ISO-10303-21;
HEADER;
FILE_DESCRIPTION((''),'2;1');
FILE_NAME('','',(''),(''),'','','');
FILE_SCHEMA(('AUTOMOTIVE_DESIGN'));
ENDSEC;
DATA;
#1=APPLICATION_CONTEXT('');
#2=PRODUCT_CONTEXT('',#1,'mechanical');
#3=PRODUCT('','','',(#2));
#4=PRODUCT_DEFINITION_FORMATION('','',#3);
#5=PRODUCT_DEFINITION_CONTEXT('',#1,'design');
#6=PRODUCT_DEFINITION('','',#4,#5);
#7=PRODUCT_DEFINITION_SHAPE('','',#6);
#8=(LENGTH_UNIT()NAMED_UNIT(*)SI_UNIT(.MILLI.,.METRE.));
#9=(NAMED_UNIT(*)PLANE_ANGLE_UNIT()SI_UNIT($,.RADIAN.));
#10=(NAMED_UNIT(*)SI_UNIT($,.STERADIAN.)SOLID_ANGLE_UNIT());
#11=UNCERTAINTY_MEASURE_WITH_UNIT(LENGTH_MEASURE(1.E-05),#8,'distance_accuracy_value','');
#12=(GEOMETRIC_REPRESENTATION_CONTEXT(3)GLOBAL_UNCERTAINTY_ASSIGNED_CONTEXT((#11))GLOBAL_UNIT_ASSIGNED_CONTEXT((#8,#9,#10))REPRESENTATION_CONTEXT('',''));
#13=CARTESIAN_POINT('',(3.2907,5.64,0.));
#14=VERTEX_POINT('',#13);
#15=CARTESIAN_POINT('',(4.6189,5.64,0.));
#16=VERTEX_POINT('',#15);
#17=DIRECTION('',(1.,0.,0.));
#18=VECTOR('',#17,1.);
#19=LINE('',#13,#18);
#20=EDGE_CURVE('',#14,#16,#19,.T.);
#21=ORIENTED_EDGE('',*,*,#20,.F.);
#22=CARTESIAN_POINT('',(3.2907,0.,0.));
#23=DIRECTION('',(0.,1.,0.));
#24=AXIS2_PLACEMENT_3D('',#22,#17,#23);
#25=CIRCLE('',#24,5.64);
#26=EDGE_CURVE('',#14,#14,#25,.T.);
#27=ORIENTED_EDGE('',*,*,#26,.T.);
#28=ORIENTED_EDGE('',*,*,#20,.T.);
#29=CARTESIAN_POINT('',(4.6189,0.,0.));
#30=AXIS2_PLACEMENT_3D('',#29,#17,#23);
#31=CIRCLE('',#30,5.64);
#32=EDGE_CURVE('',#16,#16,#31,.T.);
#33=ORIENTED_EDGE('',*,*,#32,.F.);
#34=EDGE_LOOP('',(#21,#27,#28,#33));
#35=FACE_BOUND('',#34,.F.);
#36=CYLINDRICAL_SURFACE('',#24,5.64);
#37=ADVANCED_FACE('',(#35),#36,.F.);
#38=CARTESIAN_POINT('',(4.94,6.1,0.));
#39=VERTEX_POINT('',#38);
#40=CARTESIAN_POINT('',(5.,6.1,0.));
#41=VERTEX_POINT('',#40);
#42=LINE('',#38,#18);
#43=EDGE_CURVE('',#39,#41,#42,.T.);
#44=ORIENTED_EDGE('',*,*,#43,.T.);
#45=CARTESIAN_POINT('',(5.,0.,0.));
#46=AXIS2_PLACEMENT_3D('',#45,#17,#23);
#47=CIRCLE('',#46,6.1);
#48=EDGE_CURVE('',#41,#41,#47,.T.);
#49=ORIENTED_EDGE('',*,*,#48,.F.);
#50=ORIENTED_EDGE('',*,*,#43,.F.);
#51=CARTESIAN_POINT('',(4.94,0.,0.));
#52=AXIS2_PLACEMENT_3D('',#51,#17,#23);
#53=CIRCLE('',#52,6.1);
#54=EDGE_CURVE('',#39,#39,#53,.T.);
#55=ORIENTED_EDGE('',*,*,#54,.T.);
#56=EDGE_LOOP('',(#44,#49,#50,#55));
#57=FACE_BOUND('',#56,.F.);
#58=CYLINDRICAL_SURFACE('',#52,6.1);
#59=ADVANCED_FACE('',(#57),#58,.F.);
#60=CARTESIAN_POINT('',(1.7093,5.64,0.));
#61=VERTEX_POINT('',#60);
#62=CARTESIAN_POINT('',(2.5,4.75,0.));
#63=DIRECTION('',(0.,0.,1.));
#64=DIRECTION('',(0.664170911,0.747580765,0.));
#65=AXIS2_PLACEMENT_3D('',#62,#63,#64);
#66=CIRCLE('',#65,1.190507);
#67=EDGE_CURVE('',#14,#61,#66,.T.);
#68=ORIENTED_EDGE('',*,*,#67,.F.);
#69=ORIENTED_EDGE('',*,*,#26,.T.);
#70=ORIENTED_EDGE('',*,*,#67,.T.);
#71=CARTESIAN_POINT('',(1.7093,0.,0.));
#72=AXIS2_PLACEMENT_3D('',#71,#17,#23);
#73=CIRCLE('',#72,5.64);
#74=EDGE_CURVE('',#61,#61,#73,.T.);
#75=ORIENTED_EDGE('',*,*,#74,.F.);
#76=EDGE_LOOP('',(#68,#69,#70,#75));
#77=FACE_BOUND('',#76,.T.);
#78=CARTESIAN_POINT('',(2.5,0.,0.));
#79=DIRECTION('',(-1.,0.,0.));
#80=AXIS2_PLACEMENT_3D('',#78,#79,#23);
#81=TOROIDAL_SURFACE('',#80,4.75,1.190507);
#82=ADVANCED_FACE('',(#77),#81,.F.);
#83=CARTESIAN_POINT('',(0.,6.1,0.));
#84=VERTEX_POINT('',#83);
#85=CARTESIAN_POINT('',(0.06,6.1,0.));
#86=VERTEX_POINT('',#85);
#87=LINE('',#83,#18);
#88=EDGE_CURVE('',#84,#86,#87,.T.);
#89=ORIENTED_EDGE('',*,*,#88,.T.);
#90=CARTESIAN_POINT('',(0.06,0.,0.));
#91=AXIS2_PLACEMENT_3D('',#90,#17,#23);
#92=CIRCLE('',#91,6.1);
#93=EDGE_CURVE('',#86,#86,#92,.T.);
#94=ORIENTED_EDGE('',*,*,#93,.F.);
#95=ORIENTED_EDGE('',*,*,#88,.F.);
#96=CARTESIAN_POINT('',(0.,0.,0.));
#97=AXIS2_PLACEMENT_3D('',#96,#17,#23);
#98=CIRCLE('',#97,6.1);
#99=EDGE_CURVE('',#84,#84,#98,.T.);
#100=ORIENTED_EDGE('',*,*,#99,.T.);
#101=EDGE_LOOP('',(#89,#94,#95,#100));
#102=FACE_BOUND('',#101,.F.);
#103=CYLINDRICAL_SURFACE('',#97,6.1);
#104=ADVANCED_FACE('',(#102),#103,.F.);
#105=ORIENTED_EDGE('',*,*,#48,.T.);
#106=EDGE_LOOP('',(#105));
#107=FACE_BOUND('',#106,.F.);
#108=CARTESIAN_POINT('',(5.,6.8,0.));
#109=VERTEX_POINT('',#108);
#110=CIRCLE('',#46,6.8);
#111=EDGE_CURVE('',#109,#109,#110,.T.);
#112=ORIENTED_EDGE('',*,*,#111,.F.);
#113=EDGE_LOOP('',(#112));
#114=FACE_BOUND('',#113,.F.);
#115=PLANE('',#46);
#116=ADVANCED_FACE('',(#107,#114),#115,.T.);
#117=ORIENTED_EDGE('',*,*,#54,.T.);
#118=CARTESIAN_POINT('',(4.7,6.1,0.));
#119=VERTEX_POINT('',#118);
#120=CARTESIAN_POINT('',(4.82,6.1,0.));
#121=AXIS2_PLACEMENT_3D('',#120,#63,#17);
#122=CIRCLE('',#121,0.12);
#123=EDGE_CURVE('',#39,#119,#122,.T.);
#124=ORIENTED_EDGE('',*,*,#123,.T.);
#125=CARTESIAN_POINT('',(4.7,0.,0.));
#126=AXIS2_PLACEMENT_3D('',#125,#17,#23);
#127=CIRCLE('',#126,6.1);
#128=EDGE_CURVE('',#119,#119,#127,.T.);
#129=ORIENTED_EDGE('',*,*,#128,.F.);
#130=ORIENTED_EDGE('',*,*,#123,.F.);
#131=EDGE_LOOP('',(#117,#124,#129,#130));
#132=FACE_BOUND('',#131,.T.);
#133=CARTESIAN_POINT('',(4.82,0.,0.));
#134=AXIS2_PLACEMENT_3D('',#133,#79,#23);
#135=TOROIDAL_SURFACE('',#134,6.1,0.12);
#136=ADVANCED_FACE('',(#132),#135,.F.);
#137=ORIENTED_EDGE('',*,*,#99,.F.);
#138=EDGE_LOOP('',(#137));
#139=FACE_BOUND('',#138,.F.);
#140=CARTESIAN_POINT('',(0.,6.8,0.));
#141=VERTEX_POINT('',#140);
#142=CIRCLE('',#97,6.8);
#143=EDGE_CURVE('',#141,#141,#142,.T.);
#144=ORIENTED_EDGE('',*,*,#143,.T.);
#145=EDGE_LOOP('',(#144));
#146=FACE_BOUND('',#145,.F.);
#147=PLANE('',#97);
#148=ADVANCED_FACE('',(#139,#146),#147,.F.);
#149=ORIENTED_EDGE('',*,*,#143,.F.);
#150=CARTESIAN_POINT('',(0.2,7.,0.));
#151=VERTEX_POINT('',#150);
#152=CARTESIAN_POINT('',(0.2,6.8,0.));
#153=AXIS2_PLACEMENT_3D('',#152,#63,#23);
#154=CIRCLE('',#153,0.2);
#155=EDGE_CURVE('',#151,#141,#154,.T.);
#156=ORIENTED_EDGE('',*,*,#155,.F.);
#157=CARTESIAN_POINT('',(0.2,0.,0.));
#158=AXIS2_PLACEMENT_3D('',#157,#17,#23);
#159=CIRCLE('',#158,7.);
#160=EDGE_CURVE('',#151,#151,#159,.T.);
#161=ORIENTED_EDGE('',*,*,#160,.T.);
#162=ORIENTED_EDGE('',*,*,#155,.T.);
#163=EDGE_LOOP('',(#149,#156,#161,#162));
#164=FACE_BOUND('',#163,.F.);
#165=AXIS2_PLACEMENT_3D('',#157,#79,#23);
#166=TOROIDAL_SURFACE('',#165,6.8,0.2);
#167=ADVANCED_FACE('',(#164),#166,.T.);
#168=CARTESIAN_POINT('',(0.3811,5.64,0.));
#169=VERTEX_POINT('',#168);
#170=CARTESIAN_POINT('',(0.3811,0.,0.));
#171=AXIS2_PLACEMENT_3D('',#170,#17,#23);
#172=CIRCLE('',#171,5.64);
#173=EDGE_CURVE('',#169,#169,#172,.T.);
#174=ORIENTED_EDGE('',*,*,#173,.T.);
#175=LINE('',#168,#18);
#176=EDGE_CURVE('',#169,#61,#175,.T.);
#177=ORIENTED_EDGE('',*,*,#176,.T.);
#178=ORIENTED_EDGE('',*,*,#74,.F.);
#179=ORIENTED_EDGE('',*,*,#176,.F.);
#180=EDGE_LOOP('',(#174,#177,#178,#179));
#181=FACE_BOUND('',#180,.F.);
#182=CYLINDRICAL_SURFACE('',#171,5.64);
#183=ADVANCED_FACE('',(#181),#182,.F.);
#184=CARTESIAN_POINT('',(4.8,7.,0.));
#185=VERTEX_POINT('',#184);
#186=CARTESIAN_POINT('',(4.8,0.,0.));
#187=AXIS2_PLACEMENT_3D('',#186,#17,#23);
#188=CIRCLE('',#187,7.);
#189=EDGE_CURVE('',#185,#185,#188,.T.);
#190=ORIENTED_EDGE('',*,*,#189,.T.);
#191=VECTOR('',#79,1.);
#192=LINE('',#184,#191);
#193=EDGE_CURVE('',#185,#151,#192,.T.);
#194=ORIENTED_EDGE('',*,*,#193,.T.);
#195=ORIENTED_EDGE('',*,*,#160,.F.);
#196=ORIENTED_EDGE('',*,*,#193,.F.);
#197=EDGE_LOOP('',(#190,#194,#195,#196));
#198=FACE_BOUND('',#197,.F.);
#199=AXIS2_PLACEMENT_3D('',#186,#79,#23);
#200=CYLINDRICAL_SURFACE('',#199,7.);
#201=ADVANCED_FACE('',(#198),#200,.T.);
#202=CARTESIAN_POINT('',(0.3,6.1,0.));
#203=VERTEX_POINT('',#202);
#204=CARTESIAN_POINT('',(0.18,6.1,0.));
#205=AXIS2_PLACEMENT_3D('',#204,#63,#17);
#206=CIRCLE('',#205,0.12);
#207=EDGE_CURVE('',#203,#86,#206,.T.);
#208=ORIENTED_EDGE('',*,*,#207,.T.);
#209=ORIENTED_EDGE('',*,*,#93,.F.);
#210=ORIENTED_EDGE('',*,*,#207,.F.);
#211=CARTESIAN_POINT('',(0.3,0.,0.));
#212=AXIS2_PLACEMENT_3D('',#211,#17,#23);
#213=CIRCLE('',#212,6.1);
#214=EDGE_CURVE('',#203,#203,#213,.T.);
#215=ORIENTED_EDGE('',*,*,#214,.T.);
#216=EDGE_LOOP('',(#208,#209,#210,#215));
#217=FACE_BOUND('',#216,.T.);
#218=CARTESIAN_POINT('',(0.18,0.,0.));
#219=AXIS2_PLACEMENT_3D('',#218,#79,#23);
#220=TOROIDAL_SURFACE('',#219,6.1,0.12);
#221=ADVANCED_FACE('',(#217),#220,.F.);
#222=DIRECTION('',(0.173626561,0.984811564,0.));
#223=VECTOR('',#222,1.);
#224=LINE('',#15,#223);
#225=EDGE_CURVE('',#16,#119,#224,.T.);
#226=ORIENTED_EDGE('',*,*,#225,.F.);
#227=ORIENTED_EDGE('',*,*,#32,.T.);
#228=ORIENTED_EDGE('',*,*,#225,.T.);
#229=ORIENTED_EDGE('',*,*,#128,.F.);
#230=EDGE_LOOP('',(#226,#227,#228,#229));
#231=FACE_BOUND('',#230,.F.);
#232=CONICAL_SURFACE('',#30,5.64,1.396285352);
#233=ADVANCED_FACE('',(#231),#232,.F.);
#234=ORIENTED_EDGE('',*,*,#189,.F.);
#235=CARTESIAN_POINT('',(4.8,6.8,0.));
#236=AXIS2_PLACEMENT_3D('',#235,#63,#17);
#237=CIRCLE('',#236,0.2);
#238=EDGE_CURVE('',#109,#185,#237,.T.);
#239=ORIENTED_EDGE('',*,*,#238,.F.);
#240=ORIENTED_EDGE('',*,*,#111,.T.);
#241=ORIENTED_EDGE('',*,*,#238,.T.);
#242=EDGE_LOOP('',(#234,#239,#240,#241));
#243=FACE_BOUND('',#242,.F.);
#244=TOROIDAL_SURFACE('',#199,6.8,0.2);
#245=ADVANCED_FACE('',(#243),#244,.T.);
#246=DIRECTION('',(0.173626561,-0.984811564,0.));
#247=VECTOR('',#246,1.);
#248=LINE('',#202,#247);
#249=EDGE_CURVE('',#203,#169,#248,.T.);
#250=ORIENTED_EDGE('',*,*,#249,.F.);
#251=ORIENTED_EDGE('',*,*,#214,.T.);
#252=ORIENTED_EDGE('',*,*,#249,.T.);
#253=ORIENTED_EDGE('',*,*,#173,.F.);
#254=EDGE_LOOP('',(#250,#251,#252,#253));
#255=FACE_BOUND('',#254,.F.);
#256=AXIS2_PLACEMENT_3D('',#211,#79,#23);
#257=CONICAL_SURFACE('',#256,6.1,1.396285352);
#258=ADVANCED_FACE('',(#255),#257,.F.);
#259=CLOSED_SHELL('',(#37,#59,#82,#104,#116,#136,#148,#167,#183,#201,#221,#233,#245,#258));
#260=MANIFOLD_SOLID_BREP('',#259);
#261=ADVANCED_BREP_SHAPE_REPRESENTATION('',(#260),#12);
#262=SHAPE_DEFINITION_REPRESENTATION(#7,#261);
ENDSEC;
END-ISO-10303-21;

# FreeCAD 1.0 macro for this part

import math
import FreeCAD as App
import Part
import Sketcher

doc = App.newDocument("Part")
body = doc.addObject("PartDesign::Body", "Body")

# Sketch on XY plane
sketch1 = doc.addObject("Sketcher::SketchObject", "Sketch")
body.addObject(sketch1)
sketch1.AttachmentSupport = (doc.XY_Plane, [""])
sketch1.MapMode = "FlatFace"
sketch1.addGeometry([
    Part.ArcOfCircle(Part.Circle(App.Vector(0.2, 6.8, 0), App.Vector(0, 0, 1), 0.2), math.radians(90), math.radians(180)),  # 0
    Part.LineSegment(App.Vector(0, 6.8, 0), App.Vector(0, 6.1, 0)),  # 1
    Part.LineSegment(App.Vector(0, 6.1, 0), App.Vector(0.06, 6.1, 0)),  # 2
    Part.ArcOfCircle(Part.Circle(App.Vector(0.18, 6.1, 0), App.Vector(0, 0, 1), 0.12), math.radians(0), math.radians(180)),  # 3
    Part.LineSegment(App.Vector(0.3, 6.1, 0), App.Vector(0.38, 5.64, 0)),  # 4
    Part.LineSegment(App.Vector(0.38, 5.64, 0), App.Vector(1.71, 5.64, 0)),  # 5
    Part.ArcOfCircle(Part.Circle(App.Vector(2.5, 4.75, 0), App.Vector(0, 0, 1), 1.19), math.radians(48), math.radians(132)),  # 6
    Part.LineSegment(App.Vector(3.29, 5.64, 0), App.Vector(4.62, 5.64, 0)),  # 7
    Part.LineSegment(App.Vector(4.62, 5.64, 0), App.Vector(4.7, 6.1, 0)),  # 8
    Part.ArcOfCircle(Part.Circle(App.Vector(4.82, 6.1, 0), App.Vector(0, 0, 1), 0.12), math.radians(0), math.radians(180)),  # 9
    Part.LineSegment(App.Vector(4.94, 6.1, 0), App.Vector(5, 6.1, 0)),  # 10
    Part.LineSegment(App.Vector(5, 6.1, 0), App.Vector(5, 6.8, 0)),  # 11
    Part.ArcOfCircle(Part.Circle(App.Vector(4.8, 6.8, 0), App.Vector(0, 0, 1), 0.2), math.radians(0), math.radians(90)),  # 12
    Part.LineSegment(App.Vector(4.8, 7, 0), App.Vector(0.2, 7, 0)),  # 13
], False)
sketch1.addConstraint([
    Sketcher.Constraint("Tangent", 0, 2, 1, 1),
    Sketcher.Constraint("Coincident", 1, 2, 2, 1),
    Sketcher.Constraint("Coincident", 2, 2, 3, 2),
    Sketcher.Constraint("Coincident", 3, 1, 4, 1),
    Sketcher.Constraint("Coincident", 4, 2, 5, 1),
    Sketcher.Constraint("Coincident", 5, 2, 6, 2),
    Sketcher.Constraint("Coincident", 6, 1, 7, 1),
    Sketcher.Constraint("Coincident", 7, 2, 8, 1),
    Sketcher.Constraint("Coincident", 8, 2, 9, 2),
    Sketcher.Constraint("Coincident", 9, 1, 10, 1),
    Sketcher.Constraint("Coincident", 10, 2, 11, 1),
    Sketcher.Constraint("Tangent", 11, 2, 12, 1),
    Sketcher.Constraint("Tangent", 12, 2, 13, 1),
    Sketcher.Constraint("Tangent", 13, 2, 0, 1),
    Sketcher.Constraint("Vertical", 1),
    Sketcher.Constraint("Horizontal", 2),
    Sketcher.Constraint("Horizontal", 5),
    Sketcher.Constraint("Horizontal", 7),
    Sketcher.Constraint("Horizontal", 10),
    Sketcher.Constraint("Vertical", 11),
    Sketcher.Constraint("Horizontal", 13),
    Sketcher.Constraint("Equal", 3, 9),
    Sketcher.Constraint("Equal", 0, 12),
    Sketcher.Constraint("PointOnObject", 0, 2, -2),
    Sketcher.Constraint("Horizontal", 3, 3, 9, 3),
    Sketcher.Constraint("Horizontal", 9, 3, 1, 2),
    Sketcher.Constraint("Horizontal", 2, 2, 3, 1),
    Sketcher.Constraint("Horizontal", 5, 2, 6, 1),
    Sketcher.Constraint("Horizontal", 3, 1, 8, 2),
    Sketcher.Constraint("Horizontal", 8, 2, 9, 1),
    Sketcher.Constraint("Equal", 5, 7),
    Sketcher.Constraint("Equal", 2, 10),
    Sketcher.Constraint("Equal", 4, 8),
    Sketcher.Constraint("Radius", 0, 0.2),
    Sketcher.Constraint("Radius", 3, 0.12),
    Sketcher.Constraint("DistanceX", 13, 2, 13, 1, 4.6),
    Sketcher.Constraint("DistanceY", 1, 2, 1, 1, 0.7),
    Sketcher.Constraint("DistanceY", -1, 1, 12, 2, 7.0),
    Sketcher.Constraint("DistanceX", 2, 1, 2, 2, 0.06),
    Sketcher.Constraint("Radius", 6, 1.1905),
    Sketcher.Constraint("DistanceY", -1, 1, 6, 3, 4.75),
    Sketcher.Constraint("DistanceY", -1, 1, 4, 2, 5.64),
    Sketcher.Constraint("Distance", 4, 0.467),
])
revolution = doc.addObject("PartDesign::Revolution", "Revolution")
body.addObject(revolution)
revolution.Profile = sketch1
revolution.ReferenceAxis = (sketch1, ["H_Axis"])
revolution.Angle = 360

doc.recompute()
